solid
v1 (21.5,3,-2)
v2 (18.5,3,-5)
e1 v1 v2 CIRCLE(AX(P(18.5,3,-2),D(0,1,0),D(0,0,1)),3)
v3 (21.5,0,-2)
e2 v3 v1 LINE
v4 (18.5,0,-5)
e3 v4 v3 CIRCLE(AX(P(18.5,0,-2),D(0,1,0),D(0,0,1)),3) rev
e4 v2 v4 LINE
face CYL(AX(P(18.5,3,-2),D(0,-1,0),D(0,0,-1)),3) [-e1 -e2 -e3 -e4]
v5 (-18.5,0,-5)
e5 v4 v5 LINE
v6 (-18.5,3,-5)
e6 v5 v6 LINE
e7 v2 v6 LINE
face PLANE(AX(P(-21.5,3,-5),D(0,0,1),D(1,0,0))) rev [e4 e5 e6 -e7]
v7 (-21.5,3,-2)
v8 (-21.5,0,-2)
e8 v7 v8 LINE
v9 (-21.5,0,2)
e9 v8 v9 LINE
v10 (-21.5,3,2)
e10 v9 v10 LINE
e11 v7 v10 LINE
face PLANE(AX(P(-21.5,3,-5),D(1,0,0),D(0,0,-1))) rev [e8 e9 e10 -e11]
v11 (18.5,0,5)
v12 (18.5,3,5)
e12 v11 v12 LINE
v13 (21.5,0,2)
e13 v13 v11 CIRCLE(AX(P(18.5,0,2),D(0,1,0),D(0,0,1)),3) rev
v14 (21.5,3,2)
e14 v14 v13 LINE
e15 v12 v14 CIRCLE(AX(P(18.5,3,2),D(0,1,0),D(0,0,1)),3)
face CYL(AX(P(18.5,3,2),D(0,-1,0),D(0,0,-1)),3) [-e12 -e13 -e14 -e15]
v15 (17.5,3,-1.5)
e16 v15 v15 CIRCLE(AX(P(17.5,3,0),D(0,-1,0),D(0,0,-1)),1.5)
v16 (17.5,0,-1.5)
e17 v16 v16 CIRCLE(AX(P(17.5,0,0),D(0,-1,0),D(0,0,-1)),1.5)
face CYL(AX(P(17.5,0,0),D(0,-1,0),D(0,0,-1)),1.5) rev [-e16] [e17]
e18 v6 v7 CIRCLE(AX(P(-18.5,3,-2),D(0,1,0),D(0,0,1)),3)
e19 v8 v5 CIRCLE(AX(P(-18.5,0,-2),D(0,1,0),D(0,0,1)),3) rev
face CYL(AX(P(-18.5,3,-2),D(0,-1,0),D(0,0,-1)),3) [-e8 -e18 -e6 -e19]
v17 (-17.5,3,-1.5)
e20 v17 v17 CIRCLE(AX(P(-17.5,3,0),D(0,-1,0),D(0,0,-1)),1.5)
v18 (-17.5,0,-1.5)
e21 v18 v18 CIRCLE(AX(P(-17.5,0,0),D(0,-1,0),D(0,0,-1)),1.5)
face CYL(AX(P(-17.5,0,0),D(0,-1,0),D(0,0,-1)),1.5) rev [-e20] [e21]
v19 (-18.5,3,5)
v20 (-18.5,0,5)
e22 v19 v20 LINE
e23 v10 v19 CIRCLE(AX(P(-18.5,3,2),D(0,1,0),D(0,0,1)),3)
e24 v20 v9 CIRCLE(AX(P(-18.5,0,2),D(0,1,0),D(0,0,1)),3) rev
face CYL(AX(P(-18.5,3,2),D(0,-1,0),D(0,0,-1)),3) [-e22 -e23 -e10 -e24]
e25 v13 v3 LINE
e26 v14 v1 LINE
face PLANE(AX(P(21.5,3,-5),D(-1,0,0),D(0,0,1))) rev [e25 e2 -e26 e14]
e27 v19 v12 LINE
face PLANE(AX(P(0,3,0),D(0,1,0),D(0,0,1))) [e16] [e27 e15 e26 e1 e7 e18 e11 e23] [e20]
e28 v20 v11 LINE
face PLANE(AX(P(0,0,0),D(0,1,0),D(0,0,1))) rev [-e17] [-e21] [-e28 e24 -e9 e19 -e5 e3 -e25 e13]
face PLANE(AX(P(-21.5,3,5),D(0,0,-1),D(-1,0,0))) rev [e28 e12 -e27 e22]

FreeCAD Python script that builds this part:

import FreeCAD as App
import Part
import Sketcher

V = App.Vector
Q = App.Units.Quantity


def edges_at(feature, points):
    """Names of the edges that pass closest to the given points."""
    edges = feature.Shape.Edges
    near = lambda p: min(range(len(edges)), key=lambda i: edges[i].distToShape(Part.Vertex(*p))[0])
    return sorted({f"Edge{near(p) + 1}" for p in points})

doc = App.newDocument("Part")
body = doc.addObject("PartDesign::Body", "Body")

# Sketch on XZ plane
sketch1 = doc.addObject("Sketcher::SketchObject", "Sketch")
body.addObject(sketch1)
sketch1.AttachmentSupport = (doc.XZ_Plane, [""])
sketch1.MapMode = "FlatFace"
sketch1.addGeometry([
    Part.LineSegment(V(-22, -5, 0), V(-22, 5, 0)),
    Part.LineSegment(V(-22, 5, 0), V(22, 5, 0)),
    Part.LineSegment(V(22, 5, 0), V(22, -5, 0)),
    Part.LineSegment(V(22, -5, 0), V(-22, -5, 0)),
], False)
sketch1.addConstraint([
    Sketcher.Constraint("Coincident", 0, 2, 1, 1),
    Sketcher.Constraint("Coincident", 1, 2, 2, 1),
    Sketcher.Constraint("Coincident", 2, 2, 3, 1),
    Sketcher.Constraint("Coincident", 3, 2, 0, 1),
    Sketcher.Constraint("Vertical", 0),
    Sketcher.Constraint("Horizontal", 1),
    Sketcher.Constraint("Vertical", 2),
    Sketcher.Constraint("Horizontal", 3),
    Sketcher.Constraint("Symmetric", 0, 2, 2, 2, -1, 1),
    Sketcher.Constraint("DistanceX", 1, 1, 1, 2, Q("43 mm")),
    Sketcher.Constraint("DistanceY", 0, 1, 0, 2, Q("10 mm")),
])
pad1 = doc.addObject("PartDesign::Pad", "Pad")
body.addObject(pad1)
pad1.Profile = sketch1
pad1.Length = 3
pad1.Reversed = True
doc.recompute()

fillet = doc.addObject("PartDesign::Fillet", "Fillet")
body.addObject(fillet)
fillet.Base = (pad1, edges_at(pad1, [
    (21.5, 1.5, 5),
    (-21.5, 1.5, 5),
    (-21.5, 1.5, -5),
    (21.5, 1.5, -5),
]))
fillet.Radius = 3

# Sketch on XZ plane
sketch2 = doc.addObject("Sketcher::SketchObject", "Sketch001")
body.addObject(sketch2)
sketch2.AttachmentSupport = (doc.XZ_Plane, [""])
sketch2.MapMode = "FlatFace"
sketch2.addGeometry([
    Part.Circle(V(17.5, 0, 0), V(0, 0, 1), 1.5),
    Part.Circle(V(-17.5, 0, 0), V(0, 0, 1), 1.5),
], False)
sketch2.addConstraint([
    Sketcher.Constraint("Equal", 0, 1),
    Sketcher.Constraint("Symmetric", 0, 3, 1, 3, -1, 1),
    Sketcher.Constraint("PointOnObject", 0, 3, -1),
    Sketcher.Constraint("Diameter", 0, Q("3 mm")),
    Sketcher.Constraint("DistanceX", 1, 3, 0, 3, Q("35 mm")),
])
doc.recompute()
hole = doc.addObject("PartDesign::Hole", "Hole")
body.addObject(hole)
hole.Profile = sketch2
hole.ThreadType = "None"
hole.Diameter = 3
hole.DepthType = "ThroughAll"

doc.recompute()
